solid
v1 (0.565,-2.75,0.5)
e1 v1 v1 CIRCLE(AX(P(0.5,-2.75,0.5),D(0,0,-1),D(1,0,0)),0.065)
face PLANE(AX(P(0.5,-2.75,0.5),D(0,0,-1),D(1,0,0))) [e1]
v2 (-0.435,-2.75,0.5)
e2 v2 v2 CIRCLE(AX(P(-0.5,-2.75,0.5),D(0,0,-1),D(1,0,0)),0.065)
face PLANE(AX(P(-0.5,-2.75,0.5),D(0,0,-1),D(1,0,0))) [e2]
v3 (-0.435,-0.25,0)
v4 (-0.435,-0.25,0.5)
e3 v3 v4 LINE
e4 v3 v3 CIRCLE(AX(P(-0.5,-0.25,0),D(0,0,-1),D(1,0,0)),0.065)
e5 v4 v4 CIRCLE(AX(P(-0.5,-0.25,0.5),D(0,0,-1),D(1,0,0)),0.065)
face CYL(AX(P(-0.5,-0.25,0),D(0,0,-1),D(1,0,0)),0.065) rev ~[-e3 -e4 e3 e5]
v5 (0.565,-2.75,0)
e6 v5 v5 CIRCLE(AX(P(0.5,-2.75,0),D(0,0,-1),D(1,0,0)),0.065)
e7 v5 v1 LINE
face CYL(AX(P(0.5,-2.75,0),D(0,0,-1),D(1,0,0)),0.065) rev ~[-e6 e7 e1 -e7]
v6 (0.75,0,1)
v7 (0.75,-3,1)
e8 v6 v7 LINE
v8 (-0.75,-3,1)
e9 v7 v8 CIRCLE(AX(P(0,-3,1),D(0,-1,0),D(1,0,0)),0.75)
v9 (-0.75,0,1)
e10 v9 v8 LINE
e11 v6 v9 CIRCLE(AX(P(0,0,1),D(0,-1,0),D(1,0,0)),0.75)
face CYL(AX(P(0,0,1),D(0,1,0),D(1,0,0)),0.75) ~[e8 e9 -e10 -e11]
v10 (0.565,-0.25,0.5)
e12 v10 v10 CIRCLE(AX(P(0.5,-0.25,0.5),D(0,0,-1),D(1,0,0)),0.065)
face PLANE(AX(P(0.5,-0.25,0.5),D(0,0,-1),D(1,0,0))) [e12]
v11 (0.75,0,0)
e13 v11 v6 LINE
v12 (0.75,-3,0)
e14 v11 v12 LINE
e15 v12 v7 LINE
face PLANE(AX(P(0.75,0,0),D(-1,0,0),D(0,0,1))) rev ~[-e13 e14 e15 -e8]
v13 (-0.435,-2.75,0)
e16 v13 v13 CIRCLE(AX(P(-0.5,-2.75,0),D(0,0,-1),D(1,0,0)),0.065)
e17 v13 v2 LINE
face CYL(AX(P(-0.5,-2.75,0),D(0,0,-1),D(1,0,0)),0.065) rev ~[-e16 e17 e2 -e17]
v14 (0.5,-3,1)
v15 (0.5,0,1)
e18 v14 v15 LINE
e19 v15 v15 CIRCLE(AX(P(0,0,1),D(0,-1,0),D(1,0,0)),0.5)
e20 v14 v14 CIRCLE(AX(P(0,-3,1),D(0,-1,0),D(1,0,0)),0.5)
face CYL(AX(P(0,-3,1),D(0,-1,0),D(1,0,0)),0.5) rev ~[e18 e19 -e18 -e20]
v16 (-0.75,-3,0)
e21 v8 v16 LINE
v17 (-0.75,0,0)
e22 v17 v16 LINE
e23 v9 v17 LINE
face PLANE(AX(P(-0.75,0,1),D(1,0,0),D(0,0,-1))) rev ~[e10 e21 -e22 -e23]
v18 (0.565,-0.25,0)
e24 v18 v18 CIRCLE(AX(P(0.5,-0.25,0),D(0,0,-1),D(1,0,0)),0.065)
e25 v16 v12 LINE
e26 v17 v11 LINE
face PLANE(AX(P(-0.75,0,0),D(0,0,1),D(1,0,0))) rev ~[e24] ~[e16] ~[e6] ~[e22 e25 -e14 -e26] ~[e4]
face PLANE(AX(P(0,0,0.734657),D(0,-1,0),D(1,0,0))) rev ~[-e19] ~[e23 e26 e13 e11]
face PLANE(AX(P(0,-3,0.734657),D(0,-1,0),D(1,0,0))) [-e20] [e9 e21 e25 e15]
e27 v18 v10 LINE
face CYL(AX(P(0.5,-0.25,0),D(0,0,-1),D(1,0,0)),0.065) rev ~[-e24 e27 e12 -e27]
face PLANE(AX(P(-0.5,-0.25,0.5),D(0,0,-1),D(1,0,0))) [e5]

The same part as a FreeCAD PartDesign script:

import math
import FreeCAD as App
import Part
import Sketcher

V = App.Vector

doc = App.newDocument("Part")
body = doc.addObject("PartDesign::Body", "Body")

sketch1 = body.newObject("Sketcher::SketchObject", "Sketch")
sketch1.AttachmentSupport = (doc.getObject("XZ_Plane"), [""])
sketch1.MapMode = "FlatFace"
sketch1.addGeometry([
    Part.LineSegment(V(-0.75, 0, 0), V(0.75, 0, 0)),
    Part.LineSegment(V(0.75, 0, 0), V(0.75, 1, 0)),
    Part.ArcOfCircle(Part.Circle(V(0, 1, 0), V(0, 0, 1), 0.75), math.radians(0), math.radians(180)),
    Part.LineSegment(V(-0.75, 1, 0), V(-0.75, 0, 0)),
    Part.Circle(V(0, 1, 0), V(0, 0, 1), 0.25),
], False)
sketch1.addConstraint([
    Sketcher.Constraint("Coincident", 0, 2, 1, 1),
    Sketcher.Constraint("Tangent", 1, 2, 2, 1),
    Sketcher.Constraint("Tangent", 2, 2, 3, 1),
    Sketcher.Constraint("Coincident", 3, 2, 0, 1),
    Sketcher.Constraint("Horizontal", 0),
    Sketcher.Constraint("Vertical", 1),
    Sketcher.Constraint("Vertical", 3),
    Sketcher.Constraint("Coincident", 4, 3, 2, 3),
    Sketcher.Constraint("Symmetric", 0, 2, 3, 2, -1, 1),
    Sketcher.Constraint("Diameter", 4, 0.5),
    Sketcher.Constraint("DistanceY", 1, 1, 1, 2, 1.0),
    Sketcher.Constraint("Radius", 2, 0.75),
])
pad1 = body.newObject("PartDesign::Pad", "Pad")
pad1.Profile = sketch1
pad1.Length = 3

sketch2 = body.newObject("Sketcher::SketchObject", "Sketch001")
sketch2.AttachmentSupport = (doc.getObject("XY_Plane"), [""])
sketch2.MapMode = "FlatFace"
sketch2.addGeometry([
    Part.Circle(V(-0.5, -2.75, 0), V(0, 0, 1), 0.07),
    Part.Circle(V(0.5, -2.75, 0), V(0, 0, 1), 0.07),
    Part.Circle(V(0.5, -0.25, 0), V(0, 0, 1), 0.07),
    Part.Circle(V(-0.5, -0.25, 0), V(0, 0, 1), 0.07),
], False)
sketch2.addConstraint([
    Sketcher.Constraint("Equal", 0, 1),
    Sketcher.Constraint("Equal", 1, 2),
    Sketcher.Constraint("Equal", 2, 3),
    Sketcher.Constraint("Symmetric", 0, 3, 1, 3, -2),
    Sketcher.Constraint("Symmetric", 2, 3, 3, 3, -2),
    Sketcher.Constraint("Vertical", 1, 3, 2, 3),
    Sketcher.Constraint("Diameter", 0, 0.13),
    Sketcher.Constraint("DistanceX", 0, 3, 1, 3, 1.0),
    Sketcher.Constraint("DistanceY", 1, 3, 2, 3, 2.5),
    Sketcher.Constraint("DistanceY", 0, 3, -1, 1, 2.75),
])
pocket1 = body.newObject("PartDesign::Pocket", "Pocket")
pocket1.Profile = sketch2
pocket1.Length = 0.5
pocket1.Reversed = True

sketch3 = body.newObject("Sketcher::SketchObject", "Sketch002")
sketch3.AttachmentSupport = (doc.getObject("XZ_Plane"), [""])
sketch3.MapMode = "FlatFace"
sketch3.AttachmentOffset = App.Placement(V(0, 0, 3), App.Rotation())
sketch3.addGeometry(Part.Circle(V(0, 1, 0), V(0, 0, 1), 0.5), False)
sketch3.addConstraint([
    Sketcher.Constraint("PointOnObject", 0, 3, -2),
    Sketcher.Constraint("Diameter", 0, 1.0),
    Sketcher.Constraint("DistanceY", -1, 1, 0, 3, 1.0),
])
pocket2 = body.newObject("PartDesign::Pocket", "Pocket001")
pocket2.Profile = sketch3
pocket2.Type = "ThroughAll"

doc.recompute()
